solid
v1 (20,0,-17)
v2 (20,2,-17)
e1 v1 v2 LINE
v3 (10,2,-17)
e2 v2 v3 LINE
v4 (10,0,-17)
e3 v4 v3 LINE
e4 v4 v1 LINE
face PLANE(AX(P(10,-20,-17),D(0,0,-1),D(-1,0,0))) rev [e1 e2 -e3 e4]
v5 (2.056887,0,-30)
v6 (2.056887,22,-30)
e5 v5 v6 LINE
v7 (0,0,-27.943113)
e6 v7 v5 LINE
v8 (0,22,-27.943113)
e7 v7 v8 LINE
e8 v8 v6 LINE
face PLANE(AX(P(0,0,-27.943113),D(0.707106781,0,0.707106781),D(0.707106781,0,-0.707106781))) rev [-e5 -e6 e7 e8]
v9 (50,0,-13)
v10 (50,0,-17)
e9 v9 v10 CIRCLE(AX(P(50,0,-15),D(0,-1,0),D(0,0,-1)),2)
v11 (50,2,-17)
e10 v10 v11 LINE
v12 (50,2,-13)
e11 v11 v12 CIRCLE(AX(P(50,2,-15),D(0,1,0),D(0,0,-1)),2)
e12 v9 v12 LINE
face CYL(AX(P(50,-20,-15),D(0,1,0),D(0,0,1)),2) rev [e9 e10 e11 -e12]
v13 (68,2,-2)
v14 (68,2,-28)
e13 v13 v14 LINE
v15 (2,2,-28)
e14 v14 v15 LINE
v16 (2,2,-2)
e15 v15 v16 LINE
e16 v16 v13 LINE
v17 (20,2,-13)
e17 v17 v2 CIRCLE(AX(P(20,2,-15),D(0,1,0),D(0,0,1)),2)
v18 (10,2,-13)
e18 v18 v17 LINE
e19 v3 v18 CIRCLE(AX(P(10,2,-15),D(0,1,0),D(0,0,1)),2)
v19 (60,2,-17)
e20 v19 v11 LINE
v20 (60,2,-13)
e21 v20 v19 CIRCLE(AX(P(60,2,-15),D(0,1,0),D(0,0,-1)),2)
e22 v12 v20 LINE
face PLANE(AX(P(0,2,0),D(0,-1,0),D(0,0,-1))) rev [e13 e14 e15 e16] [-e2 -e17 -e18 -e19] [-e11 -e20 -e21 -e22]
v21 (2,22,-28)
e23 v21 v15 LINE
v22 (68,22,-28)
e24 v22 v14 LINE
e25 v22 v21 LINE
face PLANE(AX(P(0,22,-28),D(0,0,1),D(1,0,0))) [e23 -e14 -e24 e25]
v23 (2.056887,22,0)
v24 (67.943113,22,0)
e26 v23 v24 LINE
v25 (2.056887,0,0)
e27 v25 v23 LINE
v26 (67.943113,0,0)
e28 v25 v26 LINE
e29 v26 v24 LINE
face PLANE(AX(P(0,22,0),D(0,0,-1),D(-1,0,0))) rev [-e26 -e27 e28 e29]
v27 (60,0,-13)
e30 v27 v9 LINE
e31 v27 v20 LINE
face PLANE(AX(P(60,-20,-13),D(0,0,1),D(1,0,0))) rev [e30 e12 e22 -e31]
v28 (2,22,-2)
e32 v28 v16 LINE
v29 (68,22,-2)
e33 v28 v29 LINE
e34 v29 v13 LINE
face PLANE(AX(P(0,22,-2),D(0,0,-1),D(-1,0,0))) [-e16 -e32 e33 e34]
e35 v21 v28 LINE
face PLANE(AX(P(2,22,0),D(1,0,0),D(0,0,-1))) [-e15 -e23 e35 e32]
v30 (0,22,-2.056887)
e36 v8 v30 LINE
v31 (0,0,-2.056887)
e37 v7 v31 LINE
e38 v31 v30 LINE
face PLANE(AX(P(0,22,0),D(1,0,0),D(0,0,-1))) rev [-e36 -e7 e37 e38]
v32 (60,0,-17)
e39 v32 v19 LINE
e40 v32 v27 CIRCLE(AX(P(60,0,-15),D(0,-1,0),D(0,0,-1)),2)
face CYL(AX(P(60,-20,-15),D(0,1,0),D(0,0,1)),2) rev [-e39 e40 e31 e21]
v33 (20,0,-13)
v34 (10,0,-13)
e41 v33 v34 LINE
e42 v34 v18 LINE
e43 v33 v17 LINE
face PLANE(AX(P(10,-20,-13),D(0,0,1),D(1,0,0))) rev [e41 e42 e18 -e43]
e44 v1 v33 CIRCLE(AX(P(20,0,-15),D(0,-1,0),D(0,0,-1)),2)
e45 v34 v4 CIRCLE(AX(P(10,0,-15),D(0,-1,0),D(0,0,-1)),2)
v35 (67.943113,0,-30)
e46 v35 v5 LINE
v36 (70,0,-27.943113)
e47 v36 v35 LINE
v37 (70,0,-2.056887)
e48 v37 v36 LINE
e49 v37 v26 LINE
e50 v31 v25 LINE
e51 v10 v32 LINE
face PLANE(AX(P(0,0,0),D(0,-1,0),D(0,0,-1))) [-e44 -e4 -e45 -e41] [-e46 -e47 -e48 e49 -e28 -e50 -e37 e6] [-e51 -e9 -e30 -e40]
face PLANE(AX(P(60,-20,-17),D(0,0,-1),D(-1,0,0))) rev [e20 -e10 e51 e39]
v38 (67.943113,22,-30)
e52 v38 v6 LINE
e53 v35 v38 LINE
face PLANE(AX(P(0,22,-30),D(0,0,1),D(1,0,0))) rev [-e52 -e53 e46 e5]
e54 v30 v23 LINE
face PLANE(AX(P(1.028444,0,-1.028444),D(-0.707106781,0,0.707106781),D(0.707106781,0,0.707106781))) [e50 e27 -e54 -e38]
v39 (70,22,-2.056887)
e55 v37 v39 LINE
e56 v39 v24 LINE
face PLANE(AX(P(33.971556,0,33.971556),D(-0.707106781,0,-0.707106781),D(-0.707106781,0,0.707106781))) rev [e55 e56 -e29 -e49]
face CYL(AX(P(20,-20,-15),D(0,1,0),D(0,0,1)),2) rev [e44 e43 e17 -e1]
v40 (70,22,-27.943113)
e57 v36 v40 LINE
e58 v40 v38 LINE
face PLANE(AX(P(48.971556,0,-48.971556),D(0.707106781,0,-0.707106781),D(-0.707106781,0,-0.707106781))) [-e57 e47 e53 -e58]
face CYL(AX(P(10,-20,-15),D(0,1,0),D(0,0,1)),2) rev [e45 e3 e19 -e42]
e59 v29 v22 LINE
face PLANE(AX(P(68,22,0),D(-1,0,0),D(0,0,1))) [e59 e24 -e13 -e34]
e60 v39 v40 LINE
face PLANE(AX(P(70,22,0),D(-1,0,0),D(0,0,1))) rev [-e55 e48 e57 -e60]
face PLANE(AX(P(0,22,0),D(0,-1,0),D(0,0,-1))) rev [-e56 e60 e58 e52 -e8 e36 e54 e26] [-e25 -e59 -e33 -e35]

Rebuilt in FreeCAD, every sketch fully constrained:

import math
import FreeCAD as App
import Part
import Sketcher


def faces_at(feature, points):
    """Names of the faces that lie closest to the given points."""
    faces = feature.Shape.Faces
    near = lambda p: min(range(len(faces)), key=lambda i: faces[i].distToShape(Part.Vertex(*p))[0])
    return sorted({f"Face{near(p) + 1}" for p in points})

doc = App.newDocument("Part")
body = doc.addObject("PartDesign::Body", "Body")

# Sketch on XZ plane
sketch1 = body.newObject("Sketcher::SketchObject", "Sketch")
sketch1.AttachmentSupport = (doc.getObject("XZ_Plane"), [""])
sketch1.MapMode = "FlatFace"
sketch1.addGeometry(Part.LineSegment(App.Vector(0, -30, 0), App.Vector(0, 0, 0)), False)
sketch1.addGeometry(Part.LineSegment(App.Vector(0, 0, 0), App.Vector(70, 0, 0)), False)
sketch1.addGeometry(Part.LineSegment(App.Vector(70, 0, 0), App.Vector(70, -30, 0)), False)
sketch1.addGeometry(Part.LineSegment(App.Vector(70, -30, 0), App.Vector(0, -30, 0)), False)
sketch1.addConstraint(Sketcher.Constraint("Coincident", 0, 2, 1, 1))
sketch1.addConstraint(Sketcher.Constraint("Coincident", 1, 2, 2, 1))
sketch1.addConstraint(Sketcher.Constraint("Coincident", 2, 2, 3, 1))
sketch1.addConstraint(Sketcher.Constraint("Coincident", 3, 2, 0, 1))
sketch1.addConstraint(Sketcher.Constraint("Vertical", 0))
sketch1.addConstraint(Sketcher.Constraint("Horizontal", 1))
sketch1.addConstraint(Sketcher.Constraint("Vertical", 2))
sketch1.addConstraint(Sketcher.Constraint("Horizontal", 3))
sketch1.addConstraint(Sketcher.Constraint("Coincident", 0, 2, -1, 1))
sketch1.addConstraint(Sketcher.Constraint("DistanceX", 1, 1, 1, 2, 70.0))
sketch1.addConstraint(Sketcher.Constraint("DistanceY", 0, 1, 0, 2, 30.0))
pad1 = body.newObject("PartDesign::Pad", "Pad")
pad1.Profile = sketch1
pad1.Length = 22
pad1.Reversed = True
doc.recompute()

thickness = body.newObject("PartDesign::Thickness", "Thickness")
thickness.Base = (pad1, faces_at(pad1, [(35, 22, -15)]))
thickness.Value = 2
thickness.Reversed = True
thickness.Join = "Intersection"

# Sketch on XZ plane
sketch2 = body.newObject("Sketcher::SketchObject", "Sketch001")
sketch2.AttachmentSupport = (doc.getObject("XZ_Plane"), [""])
sketch2.MapMode = "FlatFace"
sketch2.AttachmentOffset = App.Placement(App.Vector(0, 0, -2), App.Rotation())
sketch2.addGeometry(Part.LineSegment(App.Vector(60, -17, 0), App.Vector(50, -17, 0)), False)
sketch2.addGeometry(Part.ArcOfCircle(Part.Circle(App.Vector(50, -15, 0), App.Vector(0, 0, 1), 2), math.radians(90), math.radians(270)), False)
sketch2.addGeometry(Part.LineSegment(App.Vector(50, -13, 0), App.Vector(60, -13, 0)), False)
sketch2.addGeometry(Part.ArcOfCircle(Part.Circle(App.Vector(60, -15, 0), App.Vector(0, 0, 1), 2), math.radians(-90), math.radians(90)), False)
sketch2.addGeometry(Part.LineSegment(App.Vector(20, -17, 0), App.Vector(10, -17, 0)), False)
sketch2.addGeometry(Part.ArcOfCircle(Part.Circle(App.Vector(10, -15, 0), App.Vector(0, 0, 1), 2), math.radians(90), math.radians(270)), False)
sketch2.addGeometry(Part.LineSegment(App.Vector(10, -13, 0), App.Vector(20, -13, 0)), False)
sketch2.addGeometry(Part.ArcOfCircle(Part.Circle(App.Vector(20, -15, 0), App.Vector(0, 0, 1), 2), math.radians(-90), math.radians(90)), False)
sketch2.addConstraint(Sketcher.Constraint("Tangent", 0, 2, 1, 2))
sketch2.addConstraint(Sketcher.Constraint("Tangent", 1, 1, 2, 1))
sketch2.addConstraint(Sketcher.Constraint("Tangent", 2, 2, 3, 2))
sketch2.addConstraint(Sketcher.Constraint("Tangent", 3, 1, 0, 1))
sketch2.addConstraint(Sketcher.Constraint("Tangent", 4, 2, 5, 2))
sketch2.addConstraint(Sketcher.Constraint("Tangent", 5, 1, 6, 1))
sketch2.addConstraint(Sketcher.Constraint("Tangent", 6, 2, 7, 2))
sketch2.addConstraint(Sketcher.Constraint("Tangent", 7, 1, 4, 1))
sketch2.addConstraint(Sketcher.Constraint("Horizontal", 0))
sketch2.addConstraint(Sketcher.Constraint("Horizontal", 2))
sketch2.addConstraint(Sketcher.Constraint("Horizontal", 4))
sketch2.addConstraint(Sketcher.Constraint("Horizontal", 6))
sketch2.addConstraint(Sketcher.Constraint("Equal", 3, 5))
sketch2.addConstraint(Sketcher.Constraint("Horizontal", 3, 3, 5, 3))
sketch2.addConstraint(Sketcher.Constraint("Equal", 2, 4))
sketch2.addConstraint(Sketcher.Constraint("Radius", 1, 2.0))
sketch2.addConstraint(Sketcher.Constraint("DistanceX", 0, 2, 0, 1, 10.0))
sketch2.addConstraint(Sketcher.Constraint("DistanceX", -1, 1, 1, 3, 50.0))
sketch2.addConstraint(Sketcher.Constraint("DistanceY", 1, 3, -1, 1, 15.0))
sketch2.addConstraint(Sketcher.Constraint("DistanceX", -1, 1, 5, 3, 10.0))
pocket1 = body.newObject("PartDesign::Pocket", "Pocket")
pocket1.Profile = sketch2
pocket1.Length = 22
pocket1.Reversed = True

# Sketch on XZ plane
sketch3 = body.newObject("Sketcher::SketchObject", "Sketch002")
sketch3.AttachmentSupport = (doc.getObject("XZ_Plane"), [""])
sketch3.MapMode = "FlatFace"
sketch3.AttachmentOffset = App.Placement(App.Vector(0, 0, -22), App.Rotation())
sketch3.addGeometry(Part.LineSegment(App.Vector(2.1, 0, 0), App.Vector(0, -2.1, 0)), False)
sketch3.addGeometry(Part.LineSegment(App.Vector(0, -2.1, 0), App.Vector(0, 0, 0)), False)
sketch3.addGeometry(Part.LineSegment(App.Vector(0, 0, 0), App.Vector(2.1, 0, 0)), False)
sketch3.addGeometry(Part.LineSegment(App.Vector(70, 0, 0), App.Vector(70, -2.1, 0)), False)
sketch3.addGeometry(Part.LineSegment(App.Vector(70, -2.1, 0), App.Vector(67.9, 0, 0)), False)
sketch3.addGeometry(Part.LineSegment(App.Vector(67.9, 0, 0), App.Vector(70, 0, 0)), False)
sketch3.addGeometry(Part.LineSegment(App.Vector(70, -30, 0), App.Vector(67.9, -30, 0)), False)
sketch3.addGeometry(Part.LineSegment(App.Vector(67.9, -30, 0), App.Vector(70, -27.9, 0)), False)
sketch3.addGeometry(Part.LineSegment(App.Vector(70, -27.9, 0), App.Vector(70, -30, 0)), False)
sketch3.addGeometry(Part.LineSegment(App.Vector(2.1, -30, 0), App.Vector(0, -30, 0)), False)
sketch3.addGeometry(Part.LineSegment(App.Vector(0, -30, 0), App.Vector(0, -27.9, 0)), False)
sketch3.addGeometry(Part.LineSegment(App.Vector(0, -27.9, 0), App.Vector(2.1, -30, 0)), False)
sketch3.addConstraint(Sketcher.Constraint("Coincident", 0, 2, 1, 1))
sketch3.addConstraint(Sketcher.Constraint("Coincident", 1, 2, 2, 1))
sketch3.addConstraint(Sketcher.Constraint("Coincident", 2, 2, 0, 1))
sketch3.addConstraint(Sketcher.Constraint("Coincident", 3, 2, 4, 1))
sketch3.addConstraint(Sketcher.Constraint("Coincident", 4, 2, 5, 1))
sketch3.addConstraint(Sketcher.Constraint("Coincident", 5, 2, 3, 1))
sketch3.addConstraint(Sketcher.Constraint("Coincident", 6, 2, 7, 1))
sketch3.addConstraint(Sketcher.Constraint("Coincident", 7, 2, 8, 1))
sketch3.addConstraint(Sketcher.Constraint("Coincident", 8, 2, 6, 1))
sketch3.addConstraint(Sketcher.Constraint("Coincident", 9, 2, 10, 1))
sketch3.addConstraint(Sketcher.Constraint("Coincident", 10, 2, 11, 1))
sketch3.addConstraint(Sketcher.Constraint("Coincident", 11, 2, 9, 1))
sketch3.addConstraint(Sketcher.Constraint("Vertical", 1))
sketch3.addConstraint(Sketcher.Constraint("Horizontal", 2))
sketch3.addConstraint(Sketcher.Constraint("Vertical", 3))
sketch3.addConstraint(Sketcher.Constraint("Horizontal", 5))
sketch3.addConstraint(Sketcher.Constraint("Horizontal", 6))
sketch3.addConstraint(Sketcher.Constraint("Vertical", 8))
sketch3.addConstraint(Sketcher.Constraint("Horizontal", 9))
sketch3.addConstraint(Sketcher.Constraint("Vertical", 10))
sketch3.addConstraint(Sketcher.Constraint("Coincident", 1, 2, -1, 1))
sketch3.addConstraint(Sketcher.Constraint("PointOnObject", 4, 2, -1))
sketch3.addConstraint(Sketcher.Constraint("PointOnObject", 9, 2, -2))
sketch3.addConstraint(Sketcher.Constraint("Perpendicular", 0, 4))
sketch3.addConstraint(Sketcher.Constraint("Perpendicular", 4, 7))
sketch3.addConstraint(Sketcher.Constraint("Perpendicular", 7, 11))
sketch3.addConstraint(Sketcher.Constraint("Horizontal", 0, 2, 3, 2))
sketch3.addConstraint(Sketcher.Constraint("Horizontal", 8, 2, 9, 2))
sketch3.addConstraint(Sketcher.Constraint("Horizontal", 7, 2, 10, 2))
sketch3.addConstraint(Sketcher.Constraint("Vertical", 4, 2, 6, 2))
sketch3.addConstraint(Sketcher.Constraint("Vertical", 5, 2, 7, 2))
sketch3.addConstraint(Sketcher.Constraint("Vertical", 2, 2, 11, 2))
sketch3.addConstraint(Sketcher.Constraint("DistanceX", -1, 1, 3, 2, 70.0))
sketch3.addConstraint(Sketcher.Constraint("DistanceY", 6, 2, -1, 1, 30.0))
sketch3.addConstraint(Sketcher.Constraint("DistanceX", 2, 1, 2, 2, 2.056887))
pocket2 = body.newObject("PartDesign::Pocket", "Pocket001")
pocket2.Profile = sketch3
pocket2.Length = 22
pocket2.Reversed = True

doc.recompute()
